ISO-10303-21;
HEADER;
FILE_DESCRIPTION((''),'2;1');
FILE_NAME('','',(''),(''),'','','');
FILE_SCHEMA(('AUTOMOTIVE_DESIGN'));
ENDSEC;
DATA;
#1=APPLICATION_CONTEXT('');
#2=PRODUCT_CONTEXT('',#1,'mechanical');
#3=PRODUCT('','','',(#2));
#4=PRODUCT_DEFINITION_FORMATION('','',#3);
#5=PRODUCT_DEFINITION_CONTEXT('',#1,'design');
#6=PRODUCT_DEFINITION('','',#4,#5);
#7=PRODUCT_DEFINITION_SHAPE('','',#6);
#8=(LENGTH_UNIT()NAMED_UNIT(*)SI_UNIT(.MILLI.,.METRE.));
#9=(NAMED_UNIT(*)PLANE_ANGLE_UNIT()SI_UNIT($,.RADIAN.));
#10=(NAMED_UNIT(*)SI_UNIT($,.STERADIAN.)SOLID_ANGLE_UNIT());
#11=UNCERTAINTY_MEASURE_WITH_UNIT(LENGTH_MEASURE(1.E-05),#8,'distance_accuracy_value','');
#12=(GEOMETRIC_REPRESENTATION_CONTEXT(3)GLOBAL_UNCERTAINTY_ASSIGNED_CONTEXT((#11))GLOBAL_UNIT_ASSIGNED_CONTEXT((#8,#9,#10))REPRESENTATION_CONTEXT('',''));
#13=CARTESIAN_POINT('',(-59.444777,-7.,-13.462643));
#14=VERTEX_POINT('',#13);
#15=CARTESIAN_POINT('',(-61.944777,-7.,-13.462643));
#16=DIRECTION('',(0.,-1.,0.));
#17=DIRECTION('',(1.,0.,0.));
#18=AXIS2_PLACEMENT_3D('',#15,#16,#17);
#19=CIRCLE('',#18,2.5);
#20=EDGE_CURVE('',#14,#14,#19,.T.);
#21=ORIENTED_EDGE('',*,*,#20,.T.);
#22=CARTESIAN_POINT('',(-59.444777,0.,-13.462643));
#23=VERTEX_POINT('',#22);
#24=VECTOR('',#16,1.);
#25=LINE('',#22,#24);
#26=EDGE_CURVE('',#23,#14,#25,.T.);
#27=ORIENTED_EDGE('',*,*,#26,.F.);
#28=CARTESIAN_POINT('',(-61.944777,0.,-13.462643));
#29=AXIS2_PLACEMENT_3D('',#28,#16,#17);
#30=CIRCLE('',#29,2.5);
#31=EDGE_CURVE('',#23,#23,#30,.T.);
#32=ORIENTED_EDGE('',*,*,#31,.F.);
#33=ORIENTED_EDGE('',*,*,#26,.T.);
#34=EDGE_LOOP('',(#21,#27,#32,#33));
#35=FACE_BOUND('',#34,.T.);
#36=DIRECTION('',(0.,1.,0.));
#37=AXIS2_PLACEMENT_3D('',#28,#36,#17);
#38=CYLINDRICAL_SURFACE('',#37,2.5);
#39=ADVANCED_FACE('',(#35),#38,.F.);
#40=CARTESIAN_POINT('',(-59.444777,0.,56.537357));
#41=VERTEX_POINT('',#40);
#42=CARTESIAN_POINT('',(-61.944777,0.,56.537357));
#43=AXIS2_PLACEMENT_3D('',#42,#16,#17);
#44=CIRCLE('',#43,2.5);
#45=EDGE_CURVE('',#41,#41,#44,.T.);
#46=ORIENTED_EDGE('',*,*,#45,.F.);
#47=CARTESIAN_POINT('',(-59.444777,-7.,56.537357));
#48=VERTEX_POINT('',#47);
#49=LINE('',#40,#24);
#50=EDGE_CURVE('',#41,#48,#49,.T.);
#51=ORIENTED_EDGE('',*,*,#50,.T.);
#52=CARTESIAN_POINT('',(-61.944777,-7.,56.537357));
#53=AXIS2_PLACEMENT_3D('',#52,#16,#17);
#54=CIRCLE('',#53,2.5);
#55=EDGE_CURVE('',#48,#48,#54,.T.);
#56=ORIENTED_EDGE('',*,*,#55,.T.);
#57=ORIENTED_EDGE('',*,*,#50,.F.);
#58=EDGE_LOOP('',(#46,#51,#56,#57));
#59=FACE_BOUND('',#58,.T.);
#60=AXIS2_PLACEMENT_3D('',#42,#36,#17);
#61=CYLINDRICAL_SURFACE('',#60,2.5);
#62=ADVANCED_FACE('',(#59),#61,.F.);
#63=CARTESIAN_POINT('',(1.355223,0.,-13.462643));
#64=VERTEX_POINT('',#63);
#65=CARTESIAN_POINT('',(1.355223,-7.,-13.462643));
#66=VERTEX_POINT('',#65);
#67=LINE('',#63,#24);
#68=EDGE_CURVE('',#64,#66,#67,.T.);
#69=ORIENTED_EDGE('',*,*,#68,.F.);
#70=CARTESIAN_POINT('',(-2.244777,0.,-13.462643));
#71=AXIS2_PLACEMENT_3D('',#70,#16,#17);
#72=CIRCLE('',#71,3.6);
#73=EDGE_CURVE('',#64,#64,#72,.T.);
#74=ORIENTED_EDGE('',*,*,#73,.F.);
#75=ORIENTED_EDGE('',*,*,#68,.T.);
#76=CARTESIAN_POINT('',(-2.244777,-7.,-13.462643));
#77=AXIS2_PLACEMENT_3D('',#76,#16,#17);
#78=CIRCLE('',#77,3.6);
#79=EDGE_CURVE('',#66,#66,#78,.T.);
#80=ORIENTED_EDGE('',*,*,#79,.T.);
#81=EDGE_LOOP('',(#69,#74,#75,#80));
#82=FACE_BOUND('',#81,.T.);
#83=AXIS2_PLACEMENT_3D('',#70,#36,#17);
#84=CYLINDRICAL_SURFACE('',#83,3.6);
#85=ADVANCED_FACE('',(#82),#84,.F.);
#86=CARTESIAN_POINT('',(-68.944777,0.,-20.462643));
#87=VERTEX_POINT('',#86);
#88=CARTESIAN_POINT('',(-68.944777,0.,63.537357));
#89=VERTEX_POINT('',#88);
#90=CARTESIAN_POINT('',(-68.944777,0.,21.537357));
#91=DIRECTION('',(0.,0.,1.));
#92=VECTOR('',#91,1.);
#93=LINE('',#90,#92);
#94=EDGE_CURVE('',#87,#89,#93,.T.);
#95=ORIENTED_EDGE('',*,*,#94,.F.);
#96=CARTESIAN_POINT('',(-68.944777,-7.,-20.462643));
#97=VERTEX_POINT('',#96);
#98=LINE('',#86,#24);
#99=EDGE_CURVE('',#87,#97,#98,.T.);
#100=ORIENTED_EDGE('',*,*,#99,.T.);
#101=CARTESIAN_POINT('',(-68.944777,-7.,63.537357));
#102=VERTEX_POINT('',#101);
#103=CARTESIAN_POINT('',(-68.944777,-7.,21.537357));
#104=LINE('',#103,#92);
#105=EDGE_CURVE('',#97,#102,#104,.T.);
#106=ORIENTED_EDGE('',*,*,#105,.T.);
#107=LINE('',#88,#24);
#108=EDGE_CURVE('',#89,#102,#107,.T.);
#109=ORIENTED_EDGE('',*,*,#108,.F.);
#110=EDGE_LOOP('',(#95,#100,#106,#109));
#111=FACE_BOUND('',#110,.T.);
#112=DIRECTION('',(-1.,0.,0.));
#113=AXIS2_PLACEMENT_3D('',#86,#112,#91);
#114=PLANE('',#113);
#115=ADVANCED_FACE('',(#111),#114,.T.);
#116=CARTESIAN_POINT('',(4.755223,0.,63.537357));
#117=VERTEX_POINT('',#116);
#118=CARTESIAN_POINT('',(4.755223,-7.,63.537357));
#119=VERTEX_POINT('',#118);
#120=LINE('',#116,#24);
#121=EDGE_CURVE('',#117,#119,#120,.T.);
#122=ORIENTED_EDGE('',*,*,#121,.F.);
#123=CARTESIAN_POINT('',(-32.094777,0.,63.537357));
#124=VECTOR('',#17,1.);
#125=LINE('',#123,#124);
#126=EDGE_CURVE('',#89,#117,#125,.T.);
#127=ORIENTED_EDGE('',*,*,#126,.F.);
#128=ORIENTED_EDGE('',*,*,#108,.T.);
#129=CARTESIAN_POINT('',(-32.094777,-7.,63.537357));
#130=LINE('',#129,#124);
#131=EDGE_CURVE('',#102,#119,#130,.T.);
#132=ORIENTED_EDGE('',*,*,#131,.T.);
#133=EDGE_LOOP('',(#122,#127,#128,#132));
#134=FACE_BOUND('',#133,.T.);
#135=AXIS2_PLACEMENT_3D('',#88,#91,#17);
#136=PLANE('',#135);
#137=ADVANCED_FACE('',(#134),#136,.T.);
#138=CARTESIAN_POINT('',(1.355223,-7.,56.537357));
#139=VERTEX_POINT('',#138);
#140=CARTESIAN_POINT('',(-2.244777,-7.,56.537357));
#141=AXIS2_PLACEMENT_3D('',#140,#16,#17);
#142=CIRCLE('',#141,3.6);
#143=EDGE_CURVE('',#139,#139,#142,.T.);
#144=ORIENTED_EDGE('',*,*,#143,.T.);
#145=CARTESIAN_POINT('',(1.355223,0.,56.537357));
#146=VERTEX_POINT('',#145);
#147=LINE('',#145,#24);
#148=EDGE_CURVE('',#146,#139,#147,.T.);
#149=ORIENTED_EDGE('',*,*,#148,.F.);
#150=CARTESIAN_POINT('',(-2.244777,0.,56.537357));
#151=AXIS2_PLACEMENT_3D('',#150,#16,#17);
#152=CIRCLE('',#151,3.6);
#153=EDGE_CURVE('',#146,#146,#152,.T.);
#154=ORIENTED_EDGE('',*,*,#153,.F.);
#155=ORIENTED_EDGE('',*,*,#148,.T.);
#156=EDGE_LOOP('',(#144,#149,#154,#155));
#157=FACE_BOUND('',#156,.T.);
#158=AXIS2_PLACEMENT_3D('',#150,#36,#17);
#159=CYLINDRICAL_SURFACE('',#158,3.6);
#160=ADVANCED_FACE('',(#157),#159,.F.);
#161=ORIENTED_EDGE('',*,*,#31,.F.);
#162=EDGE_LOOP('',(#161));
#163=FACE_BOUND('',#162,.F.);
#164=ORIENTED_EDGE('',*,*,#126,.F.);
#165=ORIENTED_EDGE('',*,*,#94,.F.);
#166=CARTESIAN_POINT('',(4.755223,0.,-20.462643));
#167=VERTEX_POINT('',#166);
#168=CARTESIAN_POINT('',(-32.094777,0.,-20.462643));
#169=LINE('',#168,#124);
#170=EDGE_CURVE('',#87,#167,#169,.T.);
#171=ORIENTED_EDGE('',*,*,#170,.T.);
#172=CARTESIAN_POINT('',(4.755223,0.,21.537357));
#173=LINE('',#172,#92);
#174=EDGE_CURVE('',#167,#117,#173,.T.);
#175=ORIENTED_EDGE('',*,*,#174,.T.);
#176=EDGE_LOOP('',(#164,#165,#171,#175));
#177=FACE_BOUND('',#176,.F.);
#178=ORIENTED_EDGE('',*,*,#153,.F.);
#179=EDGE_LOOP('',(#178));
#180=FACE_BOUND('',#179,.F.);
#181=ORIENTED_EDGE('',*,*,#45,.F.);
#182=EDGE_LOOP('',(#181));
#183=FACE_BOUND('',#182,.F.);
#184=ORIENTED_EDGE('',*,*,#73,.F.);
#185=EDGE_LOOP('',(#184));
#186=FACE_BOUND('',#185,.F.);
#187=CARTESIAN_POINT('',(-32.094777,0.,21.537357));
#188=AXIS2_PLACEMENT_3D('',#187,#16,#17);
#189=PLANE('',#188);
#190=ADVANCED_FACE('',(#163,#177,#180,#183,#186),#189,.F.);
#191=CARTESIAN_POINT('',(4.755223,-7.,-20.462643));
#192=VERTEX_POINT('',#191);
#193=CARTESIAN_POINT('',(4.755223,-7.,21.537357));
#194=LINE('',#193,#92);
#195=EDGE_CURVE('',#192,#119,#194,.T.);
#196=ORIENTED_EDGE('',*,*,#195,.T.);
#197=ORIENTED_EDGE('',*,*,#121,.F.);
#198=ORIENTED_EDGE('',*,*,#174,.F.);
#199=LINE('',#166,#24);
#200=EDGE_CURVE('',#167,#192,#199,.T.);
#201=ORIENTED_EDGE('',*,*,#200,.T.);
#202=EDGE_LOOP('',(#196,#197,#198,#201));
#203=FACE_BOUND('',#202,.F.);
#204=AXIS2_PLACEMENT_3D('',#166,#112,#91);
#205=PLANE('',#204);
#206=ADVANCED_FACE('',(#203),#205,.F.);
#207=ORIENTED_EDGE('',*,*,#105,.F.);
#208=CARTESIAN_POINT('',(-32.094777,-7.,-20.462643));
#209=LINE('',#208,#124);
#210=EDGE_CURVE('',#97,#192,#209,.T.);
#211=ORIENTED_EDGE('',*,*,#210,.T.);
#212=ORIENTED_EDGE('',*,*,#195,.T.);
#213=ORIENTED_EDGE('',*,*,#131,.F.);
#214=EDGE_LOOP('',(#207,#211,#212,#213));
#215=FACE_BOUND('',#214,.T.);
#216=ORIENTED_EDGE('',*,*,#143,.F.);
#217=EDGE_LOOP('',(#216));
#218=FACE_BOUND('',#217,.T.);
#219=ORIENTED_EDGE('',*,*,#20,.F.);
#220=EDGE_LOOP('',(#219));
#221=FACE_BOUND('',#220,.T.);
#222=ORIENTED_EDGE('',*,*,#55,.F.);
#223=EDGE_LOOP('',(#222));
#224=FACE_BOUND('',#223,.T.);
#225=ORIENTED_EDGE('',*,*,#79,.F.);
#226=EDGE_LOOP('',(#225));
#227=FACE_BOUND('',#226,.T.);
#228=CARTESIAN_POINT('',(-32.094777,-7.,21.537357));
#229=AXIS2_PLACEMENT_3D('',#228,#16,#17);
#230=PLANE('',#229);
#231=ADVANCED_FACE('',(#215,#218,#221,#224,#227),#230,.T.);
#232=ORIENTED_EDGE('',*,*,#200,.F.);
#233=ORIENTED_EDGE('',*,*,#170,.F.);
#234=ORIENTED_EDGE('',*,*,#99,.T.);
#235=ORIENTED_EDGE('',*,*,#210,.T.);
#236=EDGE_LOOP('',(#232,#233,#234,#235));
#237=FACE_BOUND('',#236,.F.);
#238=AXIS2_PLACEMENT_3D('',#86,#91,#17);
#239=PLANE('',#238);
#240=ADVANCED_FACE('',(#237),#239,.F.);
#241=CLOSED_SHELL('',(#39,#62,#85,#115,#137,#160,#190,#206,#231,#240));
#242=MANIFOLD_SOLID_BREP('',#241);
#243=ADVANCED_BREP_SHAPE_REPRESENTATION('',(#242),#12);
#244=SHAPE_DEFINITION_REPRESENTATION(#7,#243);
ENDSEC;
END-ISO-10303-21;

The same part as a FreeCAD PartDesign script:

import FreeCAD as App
import Part
import Sketcher
Q = App.Units.Quantity


def add_polygon(sketch, points):
    """Adds a closed chain of lines whose ends are joined by coincident constraints."""
    first, n = sketch.GeometryCount, len(points)
    for a, b in zip(points, points[1:] + points[:1]):
        sketch.addGeometry(Part.LineSegment(App.Vector(*a, 0), App.Vector(*b, 0)), False)
    for i in range(n):
        sketch.addConstraint(Sketcher.Constraint("Coincident", first + i, 2, first + (i + 1) % n, 1))

doc = App.newDocument("Part")
body = doc.addObject("PartDesign::Body", "Body")

sketch1 = body.newObject("Sketcher::SketchObject", "Sketch")
sketch1.AttachmentSupport = (doc.getObject("XZ_Plane"), [""])
sketch1.MapMode = "FlatFace"
add_polygon(sketch1, [(-68.9, 63.5), (-68.9, -20.5), (4.8, -20.5), (4.8, 63.5)])
sketch1.addGeometry(Part.Circle(App.Vector(-61.9, -13.5, 0), App.Vector(0, 0, 1), 2.5), False)
sketch1.addGeometry(Part.Circle(App.Vector(-2.2, -13.5, 0), App.Vector(0, 0, 1), 3.6), False)
sketch1.addGeometry(Part.Circle(App.Vector(-61.9, 56.5, 0), App.Vector(0, 0, 1), 2.5), False)
sketch1.addGeometry(Part.Circle(App.Vector(-2.2, 56.5, 0), App.Vector(0, 0, 1), 3.6), False)
sketch1.addConstraint([
    Sketcher.Constraint("Vertical", 0),
    Sketcher.Constraint("Horizontal", 1),
    Sketcher.Constraint("Vertical", 2),
    Sketcher.Constraint("Horizontal", 3),
    Sketcher.Constraint("Equal", 4, 6),
    Sketcher.Constraint("Equal", 5, 7),
    Sketcher.Constraint("Horizontal", 4, 3, 5, 3),
    Sketcher.Constraint("Horizontal", 6, 3, 7, 3),
    Sketcher.Constraint("Vertical", 4, 3, 6, 3),
    Sketcher.Constraint("Vertical", 5, 3, 7, 3),
    Sketcher.Constraint("Diameter", 4, Q("5 mm")),
    Sketcher.Constraint("Diameter", 5, Q("7.2 mm")),
    Sketcher.Constraint("DistanceY", 0, 2, 0, 1, Q("84 mm")),
    Sketcher.Constraint("DistanceX", 1, 1, 1, 2, Q("73.7 mm")),
    Sketcher.Constraint("DistanceY", 4, 3, 6, 3, Q("70 mm")),
    Sketcher.Constraint("DistanceX", 0, 2, 4, 3, Q("7 mm")),
    Sketcher.Constraint("DistanceY", 0, 2, 4, 3, Q("7 mm")),
    Sketcher.Constraint("DistanceX", 5, 3, 1, 2, Q("7 mm")),
    Sketcher.Constraint("DistanceX", 4, 3, -1, 1, Q("61.944777 mm")),
    Sketcher.Constraint("DistanceY", 4, 3, -1, 1, Q("13.462643 mm")),
])
pad1 = body.newObject("PartDesign::Pad", "Pad")
pad1.Profile = sketch1
pad1.Length = 7

doc.recompute()
